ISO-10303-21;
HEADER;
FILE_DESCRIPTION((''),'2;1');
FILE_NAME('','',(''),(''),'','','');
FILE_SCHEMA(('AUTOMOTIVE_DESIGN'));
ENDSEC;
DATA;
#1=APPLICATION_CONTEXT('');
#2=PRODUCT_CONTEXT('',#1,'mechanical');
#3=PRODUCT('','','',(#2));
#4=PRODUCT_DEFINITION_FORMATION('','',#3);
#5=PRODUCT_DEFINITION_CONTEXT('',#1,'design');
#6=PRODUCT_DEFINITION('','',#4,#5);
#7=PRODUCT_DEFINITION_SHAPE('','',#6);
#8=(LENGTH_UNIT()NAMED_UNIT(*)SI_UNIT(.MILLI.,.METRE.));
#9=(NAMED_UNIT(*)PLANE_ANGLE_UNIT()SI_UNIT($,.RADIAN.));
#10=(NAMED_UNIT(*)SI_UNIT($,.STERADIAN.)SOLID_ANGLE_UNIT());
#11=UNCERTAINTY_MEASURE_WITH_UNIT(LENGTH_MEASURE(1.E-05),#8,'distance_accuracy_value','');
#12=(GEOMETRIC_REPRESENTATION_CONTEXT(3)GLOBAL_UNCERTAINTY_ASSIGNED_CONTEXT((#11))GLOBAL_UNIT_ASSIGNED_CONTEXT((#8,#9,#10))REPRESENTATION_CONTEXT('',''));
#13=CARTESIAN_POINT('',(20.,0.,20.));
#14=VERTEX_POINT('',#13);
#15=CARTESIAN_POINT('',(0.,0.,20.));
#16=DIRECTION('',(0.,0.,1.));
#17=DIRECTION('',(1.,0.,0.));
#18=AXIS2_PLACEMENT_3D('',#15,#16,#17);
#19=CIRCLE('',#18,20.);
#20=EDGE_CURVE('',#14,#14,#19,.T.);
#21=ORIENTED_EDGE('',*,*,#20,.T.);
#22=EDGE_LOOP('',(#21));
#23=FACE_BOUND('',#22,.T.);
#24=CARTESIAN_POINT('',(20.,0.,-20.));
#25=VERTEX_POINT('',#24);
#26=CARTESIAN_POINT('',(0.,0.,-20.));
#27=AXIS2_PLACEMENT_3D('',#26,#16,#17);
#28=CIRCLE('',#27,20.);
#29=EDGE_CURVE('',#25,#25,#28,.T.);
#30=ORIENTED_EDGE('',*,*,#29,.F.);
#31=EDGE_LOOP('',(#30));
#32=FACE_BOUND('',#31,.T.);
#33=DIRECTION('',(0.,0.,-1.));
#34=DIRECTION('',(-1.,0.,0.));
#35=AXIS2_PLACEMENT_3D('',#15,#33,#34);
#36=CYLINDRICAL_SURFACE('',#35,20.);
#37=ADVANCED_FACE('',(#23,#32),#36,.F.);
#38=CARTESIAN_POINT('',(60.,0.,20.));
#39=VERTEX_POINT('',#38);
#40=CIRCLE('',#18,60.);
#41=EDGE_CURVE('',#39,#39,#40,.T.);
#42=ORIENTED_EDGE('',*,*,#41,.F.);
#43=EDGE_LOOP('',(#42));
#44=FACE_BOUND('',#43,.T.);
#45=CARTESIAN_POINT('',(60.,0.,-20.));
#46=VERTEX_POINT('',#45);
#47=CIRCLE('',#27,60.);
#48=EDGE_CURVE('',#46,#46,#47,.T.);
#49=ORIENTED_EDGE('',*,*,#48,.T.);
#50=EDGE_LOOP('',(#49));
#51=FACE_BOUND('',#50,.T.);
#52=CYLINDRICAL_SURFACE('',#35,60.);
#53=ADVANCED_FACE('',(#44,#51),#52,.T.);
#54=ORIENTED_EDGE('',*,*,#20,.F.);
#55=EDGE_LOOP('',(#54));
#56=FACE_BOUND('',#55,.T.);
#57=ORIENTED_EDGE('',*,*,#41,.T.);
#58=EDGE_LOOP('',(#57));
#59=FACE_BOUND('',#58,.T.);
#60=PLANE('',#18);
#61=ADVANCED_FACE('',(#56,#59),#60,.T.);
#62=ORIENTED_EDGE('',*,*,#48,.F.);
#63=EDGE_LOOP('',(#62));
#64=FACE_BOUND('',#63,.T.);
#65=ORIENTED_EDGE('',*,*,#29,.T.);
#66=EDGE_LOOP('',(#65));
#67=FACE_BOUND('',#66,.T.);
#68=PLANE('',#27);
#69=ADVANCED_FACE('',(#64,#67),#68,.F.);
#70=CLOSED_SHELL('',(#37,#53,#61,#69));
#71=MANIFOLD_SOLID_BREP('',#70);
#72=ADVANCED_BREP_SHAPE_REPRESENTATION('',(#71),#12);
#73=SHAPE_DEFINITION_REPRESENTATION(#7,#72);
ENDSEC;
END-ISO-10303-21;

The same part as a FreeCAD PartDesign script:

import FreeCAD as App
import Part
import Sketcher
Q = App.Units.Quantity

doc = App.newDocument("Part")
body = doc.addObject("PartDesign::Body", "Body")

# Sketch on XY plane
sketch1 = body.newObject("Sketcher::SketchObject", "Sketch")
sketch1.AttachmentSupport = (doc.getObject("XY_Plane"), [""])
sketch1.MapMode = "FlatFace"
sketch1.addGeometry(Part.Circle(App.Vector(0, 0, 0), App.Vector(0, 0, 1), 60), False)
sketch1.addGeometry(Part.Circle(App.Vector(0, 0, 0), App.Vector(0, 0, 1), 20), False)
sketch1.addConstraint(Sketcher.Constraint("Coincident", 0, 3, -1, 1))
sketch1.addConstraint(Sketcher.Constraint("Coincident", 1, 3, -1, 1))
sketch1.addConstraint(Sketcher.Constraint("Diameter", 0, Q("120 mm")))
sketch1.addConstraint(Sketcher.Constraint("Diameter", 1, Q("40 mm")))
pad1 = body.newObject("PartDesign::Pad", "Pad")
pad1.Profile = sketch1
pad1.Length = 40
pad1.Midplane = True

doc.recompute()
